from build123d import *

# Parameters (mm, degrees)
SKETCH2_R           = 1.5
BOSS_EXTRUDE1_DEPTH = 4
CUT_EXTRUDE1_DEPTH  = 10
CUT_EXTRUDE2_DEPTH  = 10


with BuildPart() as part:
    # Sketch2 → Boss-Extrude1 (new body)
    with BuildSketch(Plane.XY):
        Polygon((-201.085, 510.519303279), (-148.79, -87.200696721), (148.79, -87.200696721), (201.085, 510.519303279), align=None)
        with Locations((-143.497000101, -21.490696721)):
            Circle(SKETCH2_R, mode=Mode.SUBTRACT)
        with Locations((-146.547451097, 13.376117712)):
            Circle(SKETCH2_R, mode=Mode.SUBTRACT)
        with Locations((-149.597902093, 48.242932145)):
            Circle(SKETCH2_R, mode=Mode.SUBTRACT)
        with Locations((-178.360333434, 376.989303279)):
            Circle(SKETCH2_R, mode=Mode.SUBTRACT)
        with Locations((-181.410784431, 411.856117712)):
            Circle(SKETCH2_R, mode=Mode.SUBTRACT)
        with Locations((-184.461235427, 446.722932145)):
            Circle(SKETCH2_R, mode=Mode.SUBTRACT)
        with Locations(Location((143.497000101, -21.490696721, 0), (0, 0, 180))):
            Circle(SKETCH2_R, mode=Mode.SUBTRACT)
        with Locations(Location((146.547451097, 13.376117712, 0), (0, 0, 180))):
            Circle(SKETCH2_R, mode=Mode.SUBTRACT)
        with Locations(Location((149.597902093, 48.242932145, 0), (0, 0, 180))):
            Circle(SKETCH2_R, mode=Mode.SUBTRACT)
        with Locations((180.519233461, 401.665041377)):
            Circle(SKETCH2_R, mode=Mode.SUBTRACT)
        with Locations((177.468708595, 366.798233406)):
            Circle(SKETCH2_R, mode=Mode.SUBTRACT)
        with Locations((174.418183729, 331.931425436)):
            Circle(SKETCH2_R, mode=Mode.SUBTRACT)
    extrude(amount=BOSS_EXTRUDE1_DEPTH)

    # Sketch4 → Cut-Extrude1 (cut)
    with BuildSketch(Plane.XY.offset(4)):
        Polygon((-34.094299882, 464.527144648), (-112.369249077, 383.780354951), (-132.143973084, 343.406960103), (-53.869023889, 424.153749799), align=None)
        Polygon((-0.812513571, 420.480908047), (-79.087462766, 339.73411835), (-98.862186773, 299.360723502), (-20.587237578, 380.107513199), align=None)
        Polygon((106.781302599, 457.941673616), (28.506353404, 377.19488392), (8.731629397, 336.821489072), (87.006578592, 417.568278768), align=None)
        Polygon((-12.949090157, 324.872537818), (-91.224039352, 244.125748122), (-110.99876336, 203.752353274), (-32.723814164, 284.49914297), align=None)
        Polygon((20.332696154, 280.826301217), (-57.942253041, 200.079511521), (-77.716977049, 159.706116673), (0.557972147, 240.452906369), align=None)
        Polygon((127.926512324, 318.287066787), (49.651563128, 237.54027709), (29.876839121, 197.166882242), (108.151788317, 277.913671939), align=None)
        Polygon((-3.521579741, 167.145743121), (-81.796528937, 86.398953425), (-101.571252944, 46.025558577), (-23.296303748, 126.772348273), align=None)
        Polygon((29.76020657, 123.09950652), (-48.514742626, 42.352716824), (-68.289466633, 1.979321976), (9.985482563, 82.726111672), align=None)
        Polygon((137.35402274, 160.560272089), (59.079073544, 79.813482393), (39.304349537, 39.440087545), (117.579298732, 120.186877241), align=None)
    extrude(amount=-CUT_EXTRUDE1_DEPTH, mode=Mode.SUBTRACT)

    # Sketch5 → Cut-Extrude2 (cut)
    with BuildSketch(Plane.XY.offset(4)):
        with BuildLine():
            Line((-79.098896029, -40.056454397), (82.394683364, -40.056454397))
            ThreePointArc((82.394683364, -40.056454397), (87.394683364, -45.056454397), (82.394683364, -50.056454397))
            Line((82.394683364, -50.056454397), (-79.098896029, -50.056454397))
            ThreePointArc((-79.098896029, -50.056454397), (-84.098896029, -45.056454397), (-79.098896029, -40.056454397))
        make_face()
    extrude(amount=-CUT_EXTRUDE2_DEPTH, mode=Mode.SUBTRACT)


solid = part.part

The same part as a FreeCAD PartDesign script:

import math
import FreeCAD as App
import Part
import Sketcher

V = App.Vector


def add_polygon(sketch, points):
    """Adds a closed chain of lines whose ends are joined by coincident constraints."""
    first, n = sketch.GeometryCount, len(points)
    for a, b in zip(points, points[1:] + points[:1]):
        sketch.addGeometry(Part.LineSegment(App.Vector(*a, 0), App.Vector(*b, 0)), False)
    for i in range(n):
        sketch.addConstraint(Sketcher.Constraint("Coincident", first + i, 2, first + (i + 1) % n, 1))

doc = App.newDocument("Part")
params = doc.addObject("Spreadsheet::Sheet", "Params")
for row, (alias, value) in enumerate([
    ("sketch1_diameter", "3 mm"),
    ("sketch1_width", "297.58 mm"),
    ("sketch1_width2", "402.17 mm"),
    ("pad1_length", "4 mm"),
    ("pocket1_length", "10 mm"),
    ("sketch3_radius", "5 mm"),
    ("pocket2_length", "10 mm"),
], start=1):
    params.set(f"A{row}", alias)
    params.set(f"B{row}", "=" + value)
    params.setAlias(f"B{row}", alias)

body = doc.addObject("PartDesign::Body", "Body")

# Sketch on XY plane
sketch1 = body.newObject("Sketcher::SketchObject", "Sketch")
sketch1.AttachmentSupport = (doc.getObject("XY_Plane"), [""])
sketch1.MapMode = "FlatFace"
add_polygon(sketch1, [(-201.085, 510.519303), (-148.79, -87.200697), (148.79, -87.200697), (201.085, 510.519303)])  # lines 0-3
sketch1.addGeometry(Part.Circle(V(-143.497, -21.490697, 0), V(0, 0, 1), 1.5), False)  # 4
sketch1.addGeometry(Part.Circle(V(-146.547451, 13.376118, 0), V(0, 0, 1), 1.5), False)  # 5
sketch1.addGeometry(Part.Circle(V(-149.597902, 48.242932, 0), V(0, 0, 1), 1.5), False)  # 6
sketch1.addGeometry(Part.Circle(V(143.497, -21.490697, 0), V(0, 0, 1), 1.5), False)  # 7
sketch1.addGeometry(Part.Circle(V(146.547451, 13.376118, 0), V(0, 0, 1), 1.5), False)  # 8
sketch1.addGeometry(Part.Circle(V(149.597902, 48.242932, 0), V(0, 0, 1), 1.5), False)  # 9
sketch1.addGeometry(Part.Circle(V(-178.360333, 376.989303, 0), V(0, 0, 1), 1.5), False)  # 10
sketch1.addGeometry(Part.Circle(V(-181.410784, 411.856118, 0), V(0, 0, 1), 1.5), False)  # 11
sketch1.addGeometry(Part.Circle(V(-184.461235, 446.722932, 0), V(0, 0, 1), 1.5), False)  # 12
sketch1.addGeometry(Part.Circle(V(174.418184, 331.931425, 0), V(0, 0, 1), 1.5), False)  # 13
sketch1.addGeometry(Part.Circle(V(177.468709, 366.798233, 0), V(0, 0, 1), 1.5), False)  # 14
sketch1.addGeometry(Part.Circle(V(180.519233, 401.665041, 0), V(0, 0, 1), 1.5), False)  # 15
sketch1.addConstraint(Sketcher.Constraint("Horizontal", 1))
sketch1.addConstraint(Sketcher.Constraint("Horizontal", 3))
sketch1.addConstraint(Sketcher.Constraint("Equal", 4, 5))
sketch1.addConstraint(Sketcher.Constraint("Equal", 5, 6))
sketch1.addConstraint(Sketcher.Constraint("Equal", 6, 7))
sketch1.addConstraint(Sketcher.Constraint("Equal", 7, 8))
sketch1.addConstraint(Sketcher.Constraint("Equal", 8, 9))
sketch1.addConstraint(Sketcher.Constraint("Equal", 9, 10))
sketch1.addConstraint(Sketcher.Constraint("Equal", 10, 11))
sketch1.addConstraint(Sketcher.Constraint("Equal", 11, 12))
sketch1.addConstraint(Sketcher.Constraint("Equal", 12, 13))
sketch1.addConstraint(Sketcher.Constraint("Equal", 13, 14))
sketch1.addConstraint(Sketcher.Constraint("Equal", 14, 15))
sketch1.addConstraint(Sketcher.Constraint("Symmetric", 4, 3, 7, 3, -2))
sketch1.addConstraint(Sketcher.Constraint("Symmetric", 5, 3, 8, 3, -2))
sketch1.addConstraint(Sketcher.Constraint("Symmetric", 6, 3, 9, 3, -2))
sketch1.addConstraint(Sketcher.Constraint("Equal", 0, 2))
sketch1.addConstraint(Sketcher.Constraint("Diameter", 4, 3.0))
sketch1.addConstraint(Sketcher.Constraint("DistanceX", 1, 1, 1, 2, 297.58))
sketch1.addConstraint(Sketcher.Constraint("DistanceX", 3, 2, 3, 1, 402.17))
sketch1.addConstraint(Sketcher.Constraint("DistanceX", 0, 2, -1, 1, 148.79))
sketch1.addConstraint(Sketcher.Constraint("DistanceY", 4, 3, 10, 3, 398.48))
sketch1.addConstraint(Sketcher.Constraint("DistanceY", 5, 3, 11, 3, 398.48))
sketch1.addConstraint(Sketcher.Constraint("DistanceY", 6, 3, 12, 3, 398.48))
sketch1.addConstraint(Sketcher.Constraint("DistanceY", 0, 2, 4, 3, 65.71))
sketch1.addConstraint(Sketcher.Constraint("DistanceY", 10, 3, 3, 2, 133.53))
sketch1.addConstraint(Sketcher.Constraint("DistanceX", 4, 3, -1, 1, 143.497))
sketch1.addConstraint(Sketcher.Constraint("DistanceX", 6, 3, 4, 3, 6.100902))
sketch1.addConstraint(Sketcher.Constraint("DistanceX", 12, 3, 10, 3, 6.100902))
sketch1.addConstraint(Sketcher.Constraint("DistanceY", 9, 3, 14, 3, 318.555301))
sketch1.addConstraint(Sketcher.Constraint("DistanceX", 5, 3, -1, 1, 146.547451))
sketch1.addConstraint(Sketcher.Constraint("DistanceX", -1, 1, 14, 3, 177.468709))
sketch1.addConstraint(Sketcher.Constraint("DistanceY", -1, 1, 15, 3, 401.665041))
sketch1.addConstraint(Sketcher.Constraint("DistanceY", 4, 3, 6, 3, 69.733629))
sketch1.addConstraint(Sketcher.Constraint("DistanceX", 10, 3, 6, 3, 28.762431))
sketch1.addConstraint(Sketcher.Constraint("DistanceX", 11, 3, 10, 3, 3.050451))
sketch1.addConstraint(Sketcher.Constraint("DistanceX", 9, 3, 13, 3, 24.820282))
sketch1.addConstraint(Sketcher.Constraint("DistanceX", 13, 3, 15, 3, 6.10105))
sketch1.addConstraint(Sketcher.Constraint("DistanceY", 9, 3, 15, 3, 353.422109))
sketch1.addConstraint(Sketcher.Constraint("DistanceY", -1, 1, 5, 3, 13.376118))
sketch1.addConstraint(Sketcher.Constraint("DistanceY", -1, 1, 13, 3, 331.931425))
sketch1.setExpression("Constraints[21]", "Params.sketch1_diameter")
sketch1.setExpression("Constraints[22]", "Params.sketch1_width")
sketch1.setExpression("Constraints[23]", "Params.sketch1_width2")
pad1 = body.newObject("PartDesign::Pad", "Pad")
pad1.Profile = sketch1
pad1.setExpression("Length", "Params.pad1_length")

# Sketch on XY plane
sketch2 = body.newObject("Sketcher::SketchObject", "Sketch001")
sketch2.AttachmentSupport = (doc.getObject("XY_Plane"), [""])
sketch2.MapMode = "FlatFace"
sketch2.AttachmentOffset = App.Placement(V(0, 0, 4), App.Rotation())
add_polygon(sketch2, [(-34.0943, 464.527145), (-112.369249, 383.780355), (-132.143973, 343.40696), (-53.869024, 424.15375)])  # lines 0-3
add_polygon(sketch2, [(-0.812514, 420.480908), (-79.087463, 339.734118), (-98.862187, 299.360724), (-20.587238, 380.107513)])  # lines 4-7
add_polygon(sketch2, [(106.781303, 457.941674), (28.506353, 377.194884), (8.731629, 336.821489), (87.006579, 417.568279)])  # lines 8-11
add_polygon(sketch2, [(-12.94909, 324.872538), (-91.224039, 244.125748), (-110.998763, 203.752353), (-32.723814, 284.499143)])  # lines 12-15
add_polygon(sketch2, [(20.332696, 280.826301), (-57.942253, 200.079512), (-77.716977, 159.706117), (0.557972, 240.452906)])  # lines 16-19
add_polygon(sketch2, [(127.926512, 318.287067), (49.651563, 237.540277), (29.876839, 197.166882), (108.151788, 277.913672)])  # lines 20-23
add_polygon(sketch2, [(-3.52158, 167.145743), (-81.796529, 86.398953), (-101.571253, 46.025559), (-23.296304, 126.772348)])  # lines 24-27
add_polygon(sketch2, [(29.760207, 123.099507), (-48.514743, 42.352717), (-68.289467, 1.979322), (9.985483, 82.726112)])  # lines 28-31
add_polygon(sketch2, [(137.354023, 160.560272), (59.079074, 79.813482), (39.30435, 39.440088), (117.579299, 120.186877)])  # lines 32-35
sketch2.addConstraint(Sketcher.Constraint("Parallel", 0, 2))
sketch2.addConstraint(Sketcher.Constraint("Parallel", 1, 3))
sketch2.addConstraint(Sketcher.Constraint("Parallel", 2, 4))
sketch2.addConstraint(Sketcher.Constraint("Parallel", 3, 5))
sketch2.addConstraint(Sketcher.Constraint("Parallel", 4, 6))
sketch2.addConstraint(Sketcher.Constraint("Parallel", 5, 7))
sketch2.addConstraint(Sketcher.Constraint("Parallel", 6, 8))
sketch2.addConstraint(Sketcher.Constraint("Parallel", 7, 9))
sketch2.addConstraint(Sketcher.Constraint("Parallel", 8, 10))
sketch2.addConstraint(Sketcher.Constraint("Parallel", 9, 11))
sketch2.addConstraint(Sketcher.Constraint("Parallel", 10, 12))
sketch2.addConstraint(Sketcher.Constraint("Parallel", 11, 13))
sketch2.addConstraint(Sketcher.Constraint("Parallel", 12, 14))
sketch2.addConstraint(Sketcher.Constraint("Parallel", 13, 15))
sketch2.addConstraint(Sketcher.Constraint("Parallel", 14, 16))
sketch2.addConstraint(Sketcher.Constraint("Parallel", 15, 17))
sketch2.addConstraint(Sketcher.Constraint("Parallel", 16, 18))
sketch2.addConstraint(Sketcher.Constraint("Parallel", 17, 19))
sketch2.addConstraint(Sketcher.Constraint("Parallel", 18, 20))
sketch2.addConstraint(Sketcher.Constraint("Parallel", 19, 21))
sketch2.addConstraint(Sketcher.Constraint("Parallel", 20, 22))
sketch2.addConstraint(Sketcher.Constraint("Parallel", 21, 23))
sketch2.addConstraint(Sketcher.Constraint("Parallel", 22, 24))
sketch2.addConstraint(Sketcher.Constraint("Parallel", 23, 25))
sketch2.addConstraint(Sketcher.Constraint("Parallel", 24, 26))
sketch2.addConstraint(Sketcher.Constraint("Parallel", 25, 27))
sketch2.addConstraint(Sketcher.Constraint("Parallel", 26, 28))
sketch2.addConstraint(Sketcher.Constraint("Parallel", 27, 29))
sketch2.addConstraint(Sketcher.Constraint("Parallel", 28, 30))
sketch2.addConstraint(Sketcher.Constraint("Parallel", 29, 31))
sketch2.addConstraint(Sketcher.Constraint("Parallel", 30, 32))
sketch2.addConstraint(Sketcher.Constraint("Parallel", 31, 33))
sketch2.addConstraint(Sketcher.Constraint("Parallel", 32, 34))
sketch2.addConstraint(Sketcher.Constraint("Parallel", 33, 35))
sketch2.addConstraint(Sketcher.Constraint("Equal", 2, 4))
sketch2.addConstraint(Sketcher.Constraint("Equal", 3, 5))
sketch2.addConstraint(Sketcher.Constraint("Equal", 6, 8))
sketch2.addConstraint(Sketcher.Constraint("Equal", 7, 9))
sketch2.addConstraint(Sketcher.Constraint("Equal", 10, 12))
sketch2.addConstraint(Sketcher.Constraint("Equal", 11, 13))
sketch2.addConstraint(Sketcher.Constraint("Equal", 14, 16))
sketch2.addConstraint(Sketcher.Constraint("Equal", 15, 17))
sketch2.addConstraint(Sketcher.Constraint("Equal", 18, 20))
sketch2.addConstraint(Sketcher.Constraint("Equal", 19, 21))
sketch2.addConstraint(Sketcher.Constraint("Equal", 22, 24))
sketch2.addConstraint(Sketcher.Constraint("Equal", 23, 25))
sketch2.addConstraint(Sketcher.Constraint("Equal", 26, 28))
sketch2.addConstraint(Sketcher.Constraint("Equal", 27, 29))
sketch2.addConstraint(Sketcher.Constraint("Equal", 30, 32))
sketch2.addConstraint(Sketcher.Constraint("Equal", 31, 33))
sketch2.addConstraint(Sketcher.Constraint("DistanceX", 25, 2, 16, 2, 43.629))
sketch2.addConstraint(Sketcher.Constraint("DistanceX", 3, 2, -1, 1, 34.0943))
sketch2.addConstraint(Sketcher.Constraint("DistanceY", -1, 1, 19, 2, 280.826301))
sketch2.addConstraint(Sketcher.Constraint("DistanceX", -1, 1, 34, 2, 117.579299))
sketch2.addConstraint(Sketcher.Constraint("DistanceX", 13, 2, 4, 2, 31.911301))
sketch2.addConstraint(Sketcher.Constraint("DistanceY", 24, 2, 13, 2, 117.3534))
sketch2.addConstraint(Sketcher.Constraint("DistanceY", 28, 2, 17, 2, 117.3534))
sketch2.addConstraint(Sketcher.Constraint("DistanceX", 0, 2, -1, 1, 112.369249))
sketch2.addConstraint(Sketcher.Constraint("DistanceY", -1, 1, 1, 2, 343.40696))
sketch2.addConstraint(Sketcher.Constraint("DistanceY", -1, 1, 2, 2, 424.15375))
sketch2.addConstraint(Sketcher.Constraint("DistanceY", -1, 1, 4, 2, 339.734118))
sketch2.addConstraint(Sketcher.Constraint("DistanceX", -1, 1, 9, 2, 8.731629))
sketch2.addConstraint(Sketcher.Constraint("DistanceY", -1, 1, 9, 2, 336.821489))
sketch2.addConstraint(Sketcher.Constraint("DistanceX", 12, 2, -1, 1, 91.224039))
sketch2.addConstraint(Sketcher.Constraint("DistanceY", -1, 1, 12, 2, 244.125748))
sketch2.addConstraint(Sketcher.Constraint("DistanceX", -1, 1, 21, 2, 29.876839))
sketch2.addConstraint(Sketcher.Constraint("DistanceY", -1, 1, 22, 2, 277.913672))
sketch2.addConstraint(Sketcher.Constraint("DistanceX", 24, 2, -1, 1, 81.796529))
sketch2.addConstraint(Sketcher.Constraint("DistanceY", -1, 1, 25, 2, 46.025559))
sketch2.addConstraint(Sketcher.Constraint("DistanceX", 0, 2, 6, 2, 91.782011))
sketch2.addConstraint(Sketcher.Constraint("DistanceX", 25, 2, 28, 2, 53.05651))
sketch2.addConstraint(Sketcher.Constraint("DistanceY", 32, 2, 30, 2, 2.912629))
pocket1 = body.newObject("PartDesign::Pocket", "Pocket")
pocket1.Profile = sketch2
pocket1.setExpression("Length", "Params.pocket1_length")

# Sketch on XY plane
sketch3 = body.newObject("Sketcher::SketchObject", "Sketch002")
sketch3.AttachmentSupport = (doc.getObject("XY_Plane"), [""])
sketch3.MapMode = "FlatFace"
sketch3.AttachmentOffset = App.Placement(V(0, 0, 4), App.Rotation())
sketch3.addGeometry(Part.LineSegment(V(82.394683, -40.056454, 0), V(-79.098896, -40.056454, 0)), False)
sketch3.addGeometry(Part.ArcOfCircle(Part.Circle(V(-79.098896, -45.056454, 0), V(0, 0, 1), 5), math.radians(90), math.radians(270)), False)
sketch3.addGeometry(Part.LineSegment(V(-79.098896, -50.056454, 0), V(82.394683, -50.056454, 0)), False)
sketch3.addGeometry(Part.ArcOfCircle(Part.Circle(V(82.394683, -45.056454, 0), V(0, 0, 1), 5), math.radians(-90), math.radians(90)), False)
sketch3.addConstraint(Sketcher.Constraint("Tangent", 0, 2, 1, 1))
sketch3.addConstraint(Sketcher.Constraint("Tangent", 1, 2, 2, 1))
sketch3.addConstraint(Sketcher.Constraint("Tangent", 2, 2, 3, 1))
sketch3.addConstraint(Sketcher.Constraint("Tangent", 3, 2, 0, 1))
sketch3.addConstraint(Sketcher.Constraint("Horizontal", 0))
sketch3.addConstraint(Sketcher.Constraint("Horizontal", 2))
sketch3.addConstraint(Sketcher.Constraint("Radius", 1, 5.0))
sketch3.addConstraint(Sketcher.Constraint("DistanceX", 0, 2, 0, 1, 161.493579))
sketch3.addConstraint(Sketcher.Constraint("DistanceX", 1, 3, -1, 1, 79.098896))
sketch3.addConstraint(Sketcher.Constraint("DistanceY", 1, 3, -1, 1, 45.056454))
sketch3.setExpression("Constraints[6]", "Params.sketch3_radius")
pocket2 = body.newObject("PartDesign::Pocket", "Pocket001")
pocket2.Profile = sketch3
pocket2.setExpression("Length", "Params.pocket2_length")

doc.recompute()
